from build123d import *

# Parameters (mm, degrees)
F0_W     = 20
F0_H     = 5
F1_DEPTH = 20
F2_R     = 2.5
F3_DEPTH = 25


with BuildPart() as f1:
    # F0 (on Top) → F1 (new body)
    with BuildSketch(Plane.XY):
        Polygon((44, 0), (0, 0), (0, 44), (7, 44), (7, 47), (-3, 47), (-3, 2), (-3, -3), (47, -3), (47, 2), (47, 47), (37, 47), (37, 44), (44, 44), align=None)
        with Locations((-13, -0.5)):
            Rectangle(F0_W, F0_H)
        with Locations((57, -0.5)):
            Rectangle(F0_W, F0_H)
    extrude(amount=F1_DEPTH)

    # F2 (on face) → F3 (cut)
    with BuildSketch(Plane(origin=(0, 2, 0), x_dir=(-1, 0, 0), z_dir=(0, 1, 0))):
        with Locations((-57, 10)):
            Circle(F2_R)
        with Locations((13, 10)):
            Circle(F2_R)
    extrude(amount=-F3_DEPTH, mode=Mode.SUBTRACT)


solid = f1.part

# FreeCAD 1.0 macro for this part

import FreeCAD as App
import Part
import Sketcher

V = App.Vector

doc = App.newDocument("Part")
params = doc.addObject("Spreadsheet::Sheet", "Params")
for row, (alias, value) in enumerate([
    ("sketch1_width", "44 mm"),
    ("sketch1_width2", "7 mm"),
    ("sketch1_width3", "10 mm"),
    ("sketch1_width4", "20 mm"),
    ("sketch1_height", "3 mm"),
    ("pad1_length", "20 mm"),
    ("sketch2_diameter", "5 mm"),
    ("pocket1_length", "25 mm"),
], start=1):
    params.set(f"A{row}", alias)
    params.set(f"B{row}", "=" + value)
    params.setAlias(f"B{row}", alias)

body = doc.addObject("PartDesign::Body", "Body")

sketch1 = body.newObject("Sketcher::SketchObject", "Sketch")
sketch1.AttachmentSupport = (doc.getObject("XY_Plane"), [""])
sketch1.MapMode = "FlatFace"
sketch1.addGeometry([
    Part.LineSegment(V(44, 0, 0), V(0, 0, 0)),
    Part.LineSegment(V(0, 0, 0), V(0, 44, 0)),
    Part.LineSegment(V(0, 44, 0), V(7, 44, 0)),
    Part.LineSegment(V(7, 44, 0), V(7, 47, 0)),
    Part.LineSegment(V(7, 47, 0), V(-3, 47, 0)),
    Part.LineSegment(V(-3, 47, 0), V(-3, 2, 0)),
    Part.LineSegment(V(-3, 2, 0), V(-23, 2, 0)),
    Part.LineSegment(V(-23, 2, 0), V(-23, -3, 0)),
    Part.LineSegment(V(-23, -3, 0), V(67, -3, 0)),
    Part.LineSegment(V(67, -3, 0), V(67, 2, 0)),
    Part.LineSegment(V(67, 2, 0), V(47, 2, 0)),
    Part.LineSegment(V(47, 2, 0), V(47, 47, 0)),
    Part.LineSegment(V(47, 47, 0), V(37, 47, 0)),
    Part.LineSegment(V(37, 47, 0), V(37, 44, 0)),
    Part.LineSegment(V(37, 44, 0), V(44, 44, 0)),
    Part.LineSegment(V(44, 44, 0), V(44, 0, 0)),
], False)
sketch1.addConstraint([
    Sketcher.Constraint("Coincident", 0, 2, 1, 1),
    Sketcher.Constraint("Coincident", 1, 2, 2, 1),
    Sketcher.Constraint("Coincident", 2, 2, 3, 1),
    Sketcher.Constraint("Coincident", 3, 2, 4, 1),
    Sketcher.Constraint("Coincident", 4, 2, 5, 1),
    Sketcher.Constraint("Coincident", 5, 2, 6, 1),
    Sketcher.Constraint("Coincident", 6, 2, 7, 1),
    Sketcher.Constraint("Coincident", 7, 2, 8, 1),
    Sketcher.Constraint("Coincident", 8, 2, 9, 1),
    Sketcher.Constraint("Coincident", 9, 2, 10, 1),
    Sketcher.Constraint("Coincident", 10, 2, 11, 1),
    Sketcher.Constraint("Coincident", 11, 2, 12, 1),
    Sketcher.Constraint("Coincident", 12, 2, 13, 1),
    Sketcher.Constraint("Coincident", 13, 2, 14, 1),
    Sketcher.Constraint("Coincident", 14, 2, 15, 1),
    Sketcher.Constraint("Coincident", 15, 2, 0, 1),
    Sketcher.Constraint("Horizontal", 0),
    Sketcher.Constraint("Vertical", 1),
    Sketcher.Constraint("Horizontal", 2),
    Sketcher.Constraint("Vertical", 3),
    Sketcher.Constraint("Horizontal", 4),
    Sketcher.Constraint("Vertical", 5),
    Sketcher.Constraint("Horizontal", 6),
    Sketcher.Constraint("Vertical", 7),
    Sketcher.Constraint("Horizontal", 8),
    Sketcher.Constraint("Vertical", 9),
    Sketcher.Constraint("Horizontal", 10),
    Sketcher.Constraint("Vertical", 11),
    Sketcher.Constraint("Horizontal", 12),
    Sketcher.Constraint("Vertical", 13),
    Sketcher.Constraint("Horizontal", 14),
    Sketcher.Constraint("Vertical", 15),
    Sketcher.Constraint("Coincident", 0, 2, -1, 1),
    Sketcher.Constraint("Horizontal", 6, 2, 9, 2),
    Sketcher.Constraint("Horizontal", 4, 2, 11, 2),
    Sketcher.Constraint("Horizontal", 2, 2, 13, 2),
    Sketcher.Constraint("Equal", 6, 10),
    Sketcher.Constraint("Equal", 4, 12),
    Sketcher.Constraint("Equal", 2, 14),
    Sketcher.Constraint("Equal", 0, 1),
    Sketcher.Constraint("DistanceX", 0, 2, 0, 1, 44.0),
    Sketcher.Constraint("DistanceX", 2, 1, 2, 2, 7.0),
    Sketcher.Constraint("DistanceX", 4, 2, 4, 1, 10.0),
    Sketcher.Constraint("DistanceX", 6, 2, 6, 1, 20.0),
    Sketcher.Constraint("DistanceY", 3, 1, 3, 2, 3.0),
    Sketcher.Constraint("DistanceY", 5, 2, 5, 1, 45.0),
    Sketcher.Constraint("DistanceY", 7, 2, 7, 1, 5.0),
])
sketch1.setExpression("Constraints[40]", "Params.sketch1_width")
sketch1.setExpression("Constraints[41]", "Params.sketch1_width2")
sketch1.setExpression("Constraints[42]", "Params.sketch1_width3")
sketch1.setExpression("Constraints[43]", "Params.sketch1_width4")
sketch1.setExpression("Constraints[44]", "Params.sketch1_height")
pad1 = body.newObject("PartDesign::Pad", "Pad")
pad1.Profile = sketch1
pad1.setExpression("Length", "Params.pad1_length")

sketch2 = body.newObject("Sketcher::SketchObject", "Sketch001")
sketch2.AttachmentSupport = (doc.getObject("XZ_Plane"), [""])
sketch2.MapMode = "FlatFace"
sketch2.AttachmentOffset = App.Placement(V(0, 0, -2), App.Rotation())
sketch2.addGeometry([
    Part.Circle(V(57, 10, 0), V(0, 0, 1), 2.5),
    Part.Circle(V(-13, 10, 0), V(0, 0, 1), 2.5),
], False)
sketch2.addConstraint([
    Sketcher.Constraint("Equal", 0, 1),
    Sketcher.Constraint("Horizontal", 0, 3, 1, 3),
    Sketcher.Constraint("Diameter", 0, 5.0),
    Sketcher.Constraint("DistanceX", -1, 1, 0, 3, 57.0),
    Sketcher.Constraint("DistanceY", -1, 1, 0, 3, 10.0),
    Sketcher.Constraint("DistanceX", 1, 3, -1, 1, 13.0),
])
sketch2.setExpression("Constraints[2]", "Params.sketch2_diameter")
pocket1 = body.newObject("PartDesign::Pocket", "Pocket")
pocket1.Profile = sketch2
pocket1.setExpression("Length", "Params.pocket1_length")
pocket1.Reversed = True

doc.recompute()
